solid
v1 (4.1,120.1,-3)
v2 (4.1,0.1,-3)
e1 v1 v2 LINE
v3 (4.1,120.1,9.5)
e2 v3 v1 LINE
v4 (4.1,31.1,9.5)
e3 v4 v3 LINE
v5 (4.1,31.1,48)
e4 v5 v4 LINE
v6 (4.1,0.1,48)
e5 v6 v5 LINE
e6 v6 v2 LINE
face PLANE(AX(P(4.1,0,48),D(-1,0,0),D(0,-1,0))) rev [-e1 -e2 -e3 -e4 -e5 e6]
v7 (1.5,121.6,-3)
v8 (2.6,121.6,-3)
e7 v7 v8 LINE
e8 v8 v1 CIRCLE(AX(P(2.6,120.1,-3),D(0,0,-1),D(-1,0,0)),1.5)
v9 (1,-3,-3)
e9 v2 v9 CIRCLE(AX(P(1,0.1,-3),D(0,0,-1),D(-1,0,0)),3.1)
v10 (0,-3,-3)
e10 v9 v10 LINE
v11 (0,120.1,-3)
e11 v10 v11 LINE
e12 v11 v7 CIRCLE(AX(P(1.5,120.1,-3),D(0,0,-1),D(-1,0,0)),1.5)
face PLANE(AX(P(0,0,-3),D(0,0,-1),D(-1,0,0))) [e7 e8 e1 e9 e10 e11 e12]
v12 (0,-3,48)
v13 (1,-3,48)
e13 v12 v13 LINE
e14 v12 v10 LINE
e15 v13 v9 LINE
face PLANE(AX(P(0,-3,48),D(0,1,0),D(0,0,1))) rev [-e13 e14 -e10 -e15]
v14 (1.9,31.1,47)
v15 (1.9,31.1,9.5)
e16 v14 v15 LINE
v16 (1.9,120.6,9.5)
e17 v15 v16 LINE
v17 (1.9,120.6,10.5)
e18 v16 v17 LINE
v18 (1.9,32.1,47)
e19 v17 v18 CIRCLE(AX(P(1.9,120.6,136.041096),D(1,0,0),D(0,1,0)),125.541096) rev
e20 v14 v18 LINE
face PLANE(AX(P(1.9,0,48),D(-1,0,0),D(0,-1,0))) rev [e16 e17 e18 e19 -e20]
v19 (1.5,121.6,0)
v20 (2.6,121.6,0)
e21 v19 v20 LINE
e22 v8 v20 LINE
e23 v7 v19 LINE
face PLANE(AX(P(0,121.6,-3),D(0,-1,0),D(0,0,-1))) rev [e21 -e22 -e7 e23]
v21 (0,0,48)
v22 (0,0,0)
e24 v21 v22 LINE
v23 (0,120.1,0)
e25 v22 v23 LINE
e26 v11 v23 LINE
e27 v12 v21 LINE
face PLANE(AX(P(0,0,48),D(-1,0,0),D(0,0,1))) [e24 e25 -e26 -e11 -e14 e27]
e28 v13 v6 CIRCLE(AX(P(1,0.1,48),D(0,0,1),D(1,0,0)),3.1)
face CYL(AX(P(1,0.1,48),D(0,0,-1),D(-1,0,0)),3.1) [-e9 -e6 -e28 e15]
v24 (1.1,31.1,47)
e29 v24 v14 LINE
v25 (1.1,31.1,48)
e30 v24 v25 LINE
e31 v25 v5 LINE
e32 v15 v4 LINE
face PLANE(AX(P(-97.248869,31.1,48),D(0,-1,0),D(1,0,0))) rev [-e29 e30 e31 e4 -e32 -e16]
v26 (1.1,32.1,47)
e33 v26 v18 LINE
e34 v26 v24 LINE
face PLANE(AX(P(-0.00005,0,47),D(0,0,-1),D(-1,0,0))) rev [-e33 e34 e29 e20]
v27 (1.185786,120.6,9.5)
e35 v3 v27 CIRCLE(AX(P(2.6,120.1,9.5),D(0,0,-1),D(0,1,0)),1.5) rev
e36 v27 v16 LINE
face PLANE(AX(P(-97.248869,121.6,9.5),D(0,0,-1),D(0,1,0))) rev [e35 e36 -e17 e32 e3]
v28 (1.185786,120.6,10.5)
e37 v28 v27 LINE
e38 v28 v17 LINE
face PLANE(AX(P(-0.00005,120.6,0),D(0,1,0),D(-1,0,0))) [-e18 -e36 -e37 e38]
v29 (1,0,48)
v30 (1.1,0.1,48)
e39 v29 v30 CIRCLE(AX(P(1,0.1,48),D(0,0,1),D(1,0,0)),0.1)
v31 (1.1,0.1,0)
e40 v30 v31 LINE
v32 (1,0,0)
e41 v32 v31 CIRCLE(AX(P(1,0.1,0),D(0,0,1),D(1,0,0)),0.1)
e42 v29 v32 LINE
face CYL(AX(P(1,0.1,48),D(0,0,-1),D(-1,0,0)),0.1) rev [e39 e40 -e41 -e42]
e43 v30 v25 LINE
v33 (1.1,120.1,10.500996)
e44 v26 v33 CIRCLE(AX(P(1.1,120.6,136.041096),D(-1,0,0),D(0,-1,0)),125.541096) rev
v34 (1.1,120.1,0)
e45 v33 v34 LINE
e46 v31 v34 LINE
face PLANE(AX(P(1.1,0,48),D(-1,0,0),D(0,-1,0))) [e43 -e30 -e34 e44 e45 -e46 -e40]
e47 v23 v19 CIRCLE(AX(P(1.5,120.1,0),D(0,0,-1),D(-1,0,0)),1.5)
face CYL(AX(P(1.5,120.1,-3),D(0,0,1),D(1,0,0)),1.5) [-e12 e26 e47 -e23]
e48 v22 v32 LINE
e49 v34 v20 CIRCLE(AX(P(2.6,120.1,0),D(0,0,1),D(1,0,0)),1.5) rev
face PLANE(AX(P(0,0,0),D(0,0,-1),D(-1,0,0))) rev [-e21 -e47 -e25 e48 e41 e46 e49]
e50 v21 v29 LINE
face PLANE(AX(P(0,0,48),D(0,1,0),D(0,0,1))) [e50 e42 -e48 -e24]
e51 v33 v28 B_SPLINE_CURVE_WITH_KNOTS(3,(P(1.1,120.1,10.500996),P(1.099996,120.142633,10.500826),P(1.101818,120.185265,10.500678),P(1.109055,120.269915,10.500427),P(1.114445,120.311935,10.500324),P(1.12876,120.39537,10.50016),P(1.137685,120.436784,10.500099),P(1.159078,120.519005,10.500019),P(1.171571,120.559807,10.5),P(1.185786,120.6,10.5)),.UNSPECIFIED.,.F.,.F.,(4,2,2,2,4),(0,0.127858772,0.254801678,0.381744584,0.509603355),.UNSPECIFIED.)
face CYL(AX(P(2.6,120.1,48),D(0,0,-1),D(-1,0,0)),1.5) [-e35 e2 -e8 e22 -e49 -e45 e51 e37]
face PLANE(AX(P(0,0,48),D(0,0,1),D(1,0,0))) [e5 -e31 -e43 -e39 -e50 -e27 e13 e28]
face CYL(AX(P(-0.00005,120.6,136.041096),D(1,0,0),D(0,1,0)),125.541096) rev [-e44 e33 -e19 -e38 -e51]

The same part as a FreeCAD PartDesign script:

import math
import FreeCAD as App
import Part
import Sketcher

V = App.Vector
Q = App.Units.Quantity

doc = App.newDocument("Part")
body = doc.addObject("PartDesign::Body", "Body")

sketch1 = body.newObject("Sketcher::SketchObject", "Sketch")
sketch1.AttachmentSupport = (doc.getObject("XY_Plane"), [""])
sketch1.MapMode = "FlatFace"
sketch1.addGeometry([
    Part.ArcOfCircle(Part.Circle(V(2.6, 120.1, 0), V(0, 0, 1), 1.5), math.radians(0), math.radians(180)),
    Part.LineSegment(V(1.1, 120.1, 0), V(1.1, 0.1, 0)),
    Part.ArcOfCircle(Part.Circle(V(1, 0.1, 0), V(0, 0, 1), 0.1), math.radians(-90), math.radians(0)),
    Part.LineSegment(V(1, 0, 0), V(0, 0, 0)),
    Part.LineSegment(V(0, 0, 0), V(0, -3, 0)),
    Part.LineSegment(V(0, -3, 0), V(1, -3, 0)),
    Part.ArcOfCircle(Part.Circle(V(1, 0.1, 0), V(0, 0, 1), 3.1), math.radians(-90), math.radians(0)),
    Part.LineSegment(V(4.1, 0.1, 0), V(4.1, 120.1, 0)),
], False)
sketch1.addConstraint([
    Sketcher.Constraint("Tangent", 0, 2, 1, 1),
    Sketcher.Constraint("Tangent", 1, 2, 2, 2),
    Sketcher.Constraint("Tangent", 2, 1, 3, 1),
    Sketcher.Constraint("Coincident", 3, 2, 4, 1),
    Sketcher.Constraint("Coincident", 4, 2, 5, 1),
    Sketcher.Constraint("Tangent", 5, 2, 6, 1),
    Sketcher.Constraint("Tangent", 6, 2, 7, 1),
    Sketcher.Constraint("Tangent", 7, 2, 0, 1),
    Sketcher.Constraint("Vertical", 1),
    Sketcher.Constraint("Horizontal", 3),
    Sketcher.Constraint("Vertical", 4),
    Sketcher.Constraint("Horizontal", 5),
    Sketcher.Constraint("Vertical", 7),
    Sketcher.Constraint("Coincident", 3, 2, -1, 1),
    Sketcher.Constraint("Coincident", 6, 3, 2, 3),
    Sketcher.Constraint("Radius", 0, Q("1.5 mm")),
    Sketcher.Constraint("Radius", 2, Q("0.1 mm")),
    Sketcher.Constraint("DistanceX", 3, 2, 3, 1, Q("1 mm")),
    Sketcher.Constraint("DistanceY", 1, 2, 1, 1, Q("120 mm")),
])
pad1 = body.newObject("PartDesign::Pad", "Pad")
pad1.Profile = sketch1
pad1.Length = 48

sketch2 = body.newObject("Sketcher::SketchObject", "Sketch001")
sketch2.AttachmentSupport = (doc.getObject("XY_Plane"), [""])
sketch2.MapMode = "FlatFace"
sketch2.addGeometry([
    Part.LineSegment(V(1, -3, 0), V(0, -3, 0)),
    Part.LineSegment(V(0, -3, 0), V(0, 120.1, 0)),
    Part.ArcOfCircle(Part.Circle(V(1.5, 120.1, 0), V(0, 0, 1), 1.5), math.radians(90), math.radians(180)),
    Part.LineSegment(V(1.5, 121.6, 0), V(2.6, 121.6, 0)),
    Part.ArcOfCircle(Part.Circle(V(2.6, 120.1, 0), V(0, 0, 1), 1.5), math.radians(0), math.radians(90)),
    Part.LineSegment(V(4.1, 120.1, 0), V(4.1, 0.1, 0)),
    Part.ArcOfCircle(Part.Circle(V(1, 0.1, 0), V(0, 0, 1), 3.1), math.radians(-90), math.radians(0)),
], False)
sketch2.addConstraint([
    Sketcher.Constraint("Coincident", 0, 2, 1, 1),
    Sketcher.Constraint("Tangent", 1, 2, 2, 2),
    Sketcher.Constraint("Tangent", 2, 1, 3, 1),
    Sketcher.Constraint("Tangent", 3, 2, 4, 2),
    Sketcher.Constraint("Tangent", 4, 1, 5, 1),
    Sketcher.Constraint("Tangent", 5, 2, 6, 2),
    Sketcher.Constraint("Tangent", 6, 1, 0, 1),
    Sketcher.Constraint("Horizontal", 0),
    Sketcher.Constraint("Vertical", 1),
    Sketcher.Constraint("Horizontal", 3),
    Sketcher.Constraint("Vertical", 5),
    Sketcher.Constraint("Equal", 2, 4),
    Sketcher.Constraint("PointOnObject", 0, 2, -2),
    Sketcher.Constraint("Radius", 2, Q("1.5 mm")),
    Sketcher.Constraint("Radius", 6, Q("3.1 mm")),
    Sketcher.Constraint("DistanceX", 0, 2, 0, 1, Q("1 mm")),
    Sketcher.Constraint("DistanceY", 5, 2, 5, 1, Q("120 mm")),
    Sketcher.Constraint("DistanceY", 0, 2, -1, 1, Q("3 mm")),
])
pad2 = body.newObject("PartDesign::Pad", "Pad001")
pad2.Profile = sketch2
pad2.Length = 3
pad2.Reversed = True

sketch3 = body.newObject("Sketcher::SketchObject", "Sketch002")
sketch3.AttachmentSupport = (doc.getObject("YZ_Plane"), [""])
sketch3.MapMode = "FlatFace"
sketch3.AttachmentOffset = App.Placement(V(0, 0, 4.1), App.Rotation())
sketch3.addGeometry([
    Part.LineSegment(V(122, 48, 0), V(31, 48, 0)),
    Part.LineSegment(V(31, 48, 0), V(31, 10, 0)),
    Part.LineSegment(V(31, 10, 0), V(122, 10, 0)),
    Part.LineSegment(V(122, 10, 0), V(122, 48, 0)),
], False)
sketch3.addConstraint([
    Sketcher.Constraint("Coincident", 0, 2, 1, 1),
    Sketcher.Constraint("Coincident", 1, 2, 2, 1),
    Sketcher.Constraint("Coincident", 2, 2, 3, 1),
    Sketcher.Constraint("Coincident", 3, 2, 0, 1),
    Sketcher.Constraint("Horizontal", 0),
    Sketcher.Constraint("Vertical", 1),
    Sketcher.Constraint("Horizontal", 2),
    Sketcher.Constraint("Vertical", 3),
    Sketcher.Constraint("DistanceX", 0, 2, 0, 1, Q("90.5 mm")),
    Sketcher.Constraint("DistanceY", 1, 2, 1, 1, Q("38.5 mm")),
    Sketcher.Constraint("DistanceY", -1, 1, 0, 2, Q("48 mm")),
    Sketcher.Constraint("DistanceX", -1, 1, 0, 2, Q("31.1 mm")),
])
pocket1 = body.newObject("PartDesign::Pocket", "Pocket")
pocket1.Profile = sketch3
pocket1.Length = 2.2

sketch4 = body.newObject("Sketcher::SketchObject", "Sketch003")
sketch4.AttachmentSupport = (doc.getObject("YZ_Plane"), [""])
sketch4.MapMode = "FlatFace"
sketch4.AttachmentOffset = App.Placement(V(0, 0, 1.9), App.Rotation())
sketch4.addGeometry([
    Part.LineSegment(V(120.6, 9.5, 0), V(121.4, 9.5, 0)),
    Part.LineSegment(V(121.4, 9.5, 0), V(121.4, 48, 0)),
    Part.LineSegment(V(121.4, 48, 0), V(31.1, 48, 0)),
    Part.LineSegment(V(31.1, 48, 0), V(31.1, 47, 0)),
    Part.LineSegment(V(31.1, 47, 0), V(32.1, 47, 0)),
    Part.ArcOfCircle(Part.Circle(V(120.6, 136, 0), V(0, 0, 1), 125.5), math.radians(-135), math.radians(-90)),
    Part.LineSegment(V(120.6, 10.5, 0), V(120.6, 9.5, 0)),
], False)
sketch4.addConstraint([
    Sketcher.Constraint("Coincident", 0, 2, 1, 1),
    Sketcher.Constraint("Coincident", 1, 2, 2, 1),
    Sketcher.Constraint("Coincident", 2, 2, 3, 1),
    Sketcher.Constraint("Coincident", 3, 2, 4, 1),
    Sketcher.Constraint("Coincident", 4, 2, 5, 1),
    Sketcher.Constraint("Coincident", 5, 2, 6, 1),
    Sketcher.Constraint("Coincident", 6, 2, 0, 1),
    Sketcher.Constraint("Horizontal", 0),
    Sketcher.Constraint("Vertical", 1),
    Sketcher.Constraint("Horizontal", 2),
    Sketcher.Constraint("Vertical", 3),
    Sketcher.Constraint("Horizontal", 4),
    Sketcher.Constraint("Vertical", 6),
    Sketcher.Constraint("Equal", 4, 3),
    Sketcher.Constraint("Equal", 3, 6),
    Sketcher.Constraint("DistanceX", 4, 1, 4, 2, Q("1 mm")),
    Sketcher.Constraint("DistanceY", 1, 1, 1, 2, Q("38.5 mm")),
    Sketcher.Constraint("DistanceY", -1, 1, 1, 2, Q("48 mm")),
    Sketcher.Constraint("DistanceX", -1, 1, 5, 3, Q("120.6 mm")),
    Sketcher.Constraint("DistanceX", -1, 1, 2, 2, Q("31.1 mm")),
    Sketcher.Constraint("DistanceX", -1, 1, 5, 2, Q("120.6 mm")),
    Sketcher.Constraint("DistanceX", 0, 1, 0, 2, Q("0.82665 mm")),
])
pocket2 = body.newObject("PartDesign::Pocket", "Pocket001")
pocket2.Profile = sketch4
pocket2.Type = "ThroughAll"

doc.recompute()
